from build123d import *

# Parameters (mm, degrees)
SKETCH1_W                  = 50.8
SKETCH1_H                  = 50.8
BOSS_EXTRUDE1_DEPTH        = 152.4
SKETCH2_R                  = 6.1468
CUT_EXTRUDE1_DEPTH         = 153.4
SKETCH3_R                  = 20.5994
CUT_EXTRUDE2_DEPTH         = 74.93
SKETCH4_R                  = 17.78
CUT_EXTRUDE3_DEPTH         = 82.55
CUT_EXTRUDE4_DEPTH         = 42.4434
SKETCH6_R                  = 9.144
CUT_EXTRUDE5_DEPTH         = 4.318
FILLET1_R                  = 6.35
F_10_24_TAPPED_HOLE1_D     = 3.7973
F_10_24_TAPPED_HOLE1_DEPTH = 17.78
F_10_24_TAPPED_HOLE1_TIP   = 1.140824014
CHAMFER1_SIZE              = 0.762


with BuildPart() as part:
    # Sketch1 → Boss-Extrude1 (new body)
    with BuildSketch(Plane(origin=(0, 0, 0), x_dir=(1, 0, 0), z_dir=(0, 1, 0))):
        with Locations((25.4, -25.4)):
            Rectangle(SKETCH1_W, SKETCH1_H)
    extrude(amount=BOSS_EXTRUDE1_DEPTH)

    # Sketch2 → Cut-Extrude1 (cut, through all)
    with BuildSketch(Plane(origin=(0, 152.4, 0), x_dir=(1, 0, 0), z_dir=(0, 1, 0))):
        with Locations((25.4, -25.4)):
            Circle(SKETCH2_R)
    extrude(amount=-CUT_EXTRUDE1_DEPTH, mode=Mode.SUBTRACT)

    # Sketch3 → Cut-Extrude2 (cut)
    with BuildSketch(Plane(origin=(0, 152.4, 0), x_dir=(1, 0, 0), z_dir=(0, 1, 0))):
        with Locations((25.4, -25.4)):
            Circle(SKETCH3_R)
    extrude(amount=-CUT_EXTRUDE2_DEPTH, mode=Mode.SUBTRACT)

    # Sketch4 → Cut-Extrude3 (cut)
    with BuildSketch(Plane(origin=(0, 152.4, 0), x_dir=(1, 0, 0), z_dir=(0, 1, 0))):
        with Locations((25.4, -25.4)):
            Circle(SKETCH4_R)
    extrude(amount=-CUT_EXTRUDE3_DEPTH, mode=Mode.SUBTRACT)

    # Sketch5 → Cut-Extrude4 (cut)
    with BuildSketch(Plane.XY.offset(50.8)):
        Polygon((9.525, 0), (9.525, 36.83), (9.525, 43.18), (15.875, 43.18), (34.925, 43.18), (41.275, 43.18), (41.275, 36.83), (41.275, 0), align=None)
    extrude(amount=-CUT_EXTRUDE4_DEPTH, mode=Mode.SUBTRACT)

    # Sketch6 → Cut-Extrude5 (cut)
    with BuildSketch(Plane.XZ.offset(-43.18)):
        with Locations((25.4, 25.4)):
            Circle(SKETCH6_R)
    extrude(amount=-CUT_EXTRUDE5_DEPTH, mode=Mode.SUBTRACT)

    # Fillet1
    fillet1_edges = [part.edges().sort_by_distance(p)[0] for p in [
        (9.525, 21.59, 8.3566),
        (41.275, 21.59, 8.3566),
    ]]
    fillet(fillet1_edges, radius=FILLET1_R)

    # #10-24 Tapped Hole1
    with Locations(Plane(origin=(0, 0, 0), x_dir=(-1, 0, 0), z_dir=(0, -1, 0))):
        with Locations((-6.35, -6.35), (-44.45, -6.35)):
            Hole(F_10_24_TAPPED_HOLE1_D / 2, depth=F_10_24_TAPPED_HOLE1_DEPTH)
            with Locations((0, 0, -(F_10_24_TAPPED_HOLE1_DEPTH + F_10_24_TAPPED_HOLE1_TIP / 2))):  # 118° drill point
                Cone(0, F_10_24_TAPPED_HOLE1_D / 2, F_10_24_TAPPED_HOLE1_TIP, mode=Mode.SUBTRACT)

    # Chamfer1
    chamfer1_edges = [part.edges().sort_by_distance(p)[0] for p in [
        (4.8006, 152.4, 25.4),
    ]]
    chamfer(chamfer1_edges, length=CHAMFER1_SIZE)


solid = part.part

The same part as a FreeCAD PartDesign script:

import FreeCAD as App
import Part
import Sketcher
from FreeCAD import Vector
Q = App.Units.Quantity


def edges_at(feature, points):
    """Names of the edges that pass closest to the given points."""
    edges = feature.Shape.Edges
    near = lambda p: min(range(len(edges)), key=lambda i: edges[i].distToShape(Part.Vertex(*p))[0])
    return sorted({f"Edge{near(p) + 1}" for p in points})


def add_polygon(sketch, points):
    """Adds a closed chain of lines whose ends are joined by coincident constraints."""
    first, n = sketch.GeometryCount, len(points)
    for a, b in zip(points, points[1:] + points[:1]):
        sketch.addGeometry(Part.LineSegment(App.Vector(*a, 0), App.Vector(*b, 0)), False)
    for i in range(n):
        sketch.addConstraint(Sketcher.Constraint("Coincident", first + i, 2, first + (i + 1) % n, 1))

doc = App.newDocument("Part")
body = doc.addObject("PartDesign::Body", "Body")

# Sketch on XZ plane
sketch1 = body.newObject("Sketcher::SketchObject", "Sketch")
sketch1.AttachmentSupport = (doc.getObject("XZ_Plane"), [""])
sketch1.MapMode = "FlatFace"
add_polygon(sketch1, [(0, 0), (0, 51), (51, 51), (51, 0)])  # lines 0-3
sketch1.addConstraint([
    Sketcher.Constraint("Vertical", 0),
    Sketcher.Constraint("Horizontal", 1),
    Sketcher.Constraint("Vertical", 2),
    Sketcher.Constraint("Horizontal", 3),
    Sketcher.Constraint("Coincident", 3, 2, -1, 1),
    Sketcher.Constraint("Equal", 3, 0),
    Sketcher.Constraint("DistanceX", 1, 1, 1, 2, Q("2 in")),
])
pad1 = body.newObject("PartDesign::Pad", "Pad")
pad1.Profile = sketch1
pad1.Length = Q("6 in")
pad1.Reversed = True

# Sketch on XZ plane
sketch2 = body.newObject("Sketcher::SketchObject", "Sketch001")
sketch2.AttachmentSupport = (doc.getObject("XZ_Plane"), [""])
sketch2.MapMode = "FlatFace"
sketch2.AttachmentOffset = App.Placement(Vector(0, 0, -6 * 25.4), App.Rotation())
sketch2.addGeometry(Part.Circle(Vector(25, 25, 0), Vector(0, 0, 1), 6), False)
sketch2.addConstraint([
    Sketcher.Constraint("Diameter", 0, Q("0.484 in")),
    Sketcher.Constraint("DistanceX", -1, 1, 0, 3, Q("1 in")),
    Sketcher.Constraint("DistanceY", -1, 1, 0, 3, Q("1 in")),
])
pocket1 = body.newObject("PartDesign::Pocket", "Pocket")
pocket1.Profile = sketch2
pocket1.Type = "ThroughAll"
pocket1.Reversed = True

# Sketch on XZ plane
sketch3 = body.newObject("Sketcher::SketchObject", "Sketch002")
sketch3.AttachmentSupport = (doc.getObject("XZ_Plane"), [""])
sketch3.MapMode = "FlatFace"
sketch3.AttachmentOffset = App.Placement(Vector(0, 0, -6 * 25.4), App.Rotation())
sketch3.addGeometry(Part.Circle(Vector(25, 25, 0), Vector(0, 0, 1), 21), False)
sketch3.addConstraint([
    Sketcher.Constraint("Diameter", 0, Q("1.622 in")),
    Sketcher.Constraint("DistanceX", -1, 1, 0, 3, Q("1 in")),
    Sketcher.Constraint("DistanceY", -1, 1, 0, 3, Q("1 in")),
])
pocket2 = body.newObject("PartDesign::Pocket", "Pocket001")
pocket2.Profile = sketch3
pocket2.Length = Q("2.95 in")
pocket2.Reversed = True

# Sketch on XZ plane
sketch4 = body.newObject("Sketcher::SketchObject", "Sketch003")
sketch4.AttachmentSupport = (doc.getObject("XZ_Plane"), [""])
sketch4.MapMode = "FlatFace"
sketch4.AttachmentOffset = App.Placement(Vector(0, 0, -6 * 25.4), App.Rotation())
sketch4.addGeometry(Part.Circle(Vector(25, 25, 0), Vector(0, 0, 1), 18), False)
sketch4.addConstraint([
    Sketcher.Constraint("Diameter", 0, Q("1.4 in")),
    Sketcher.Constraint("DistanceX", -1, 1, 0, 3, Q("1 in")),
    Sketcher.Constraint("DistanceY", -1, 1, 0, 3, Q("1 in")),
])
pocket3 = body.newObject("PartDesign::Pocket", "Pocket002")
pocket3.Profile = sketch4
pocket3.Length = Q("3.25 in")
pocket3.Reversed = True

# Sketch on XY plane
sketch5 = body.newObject("Sketcher::SketchObject", "Sketch004")
sketch5.AttachmentSupport = (doc.getObject("XY_Plane"), [""])
sketch5.MapMode = "FlatFace"
sketch5.AttachmentOffset = App.Placement(Vector(0, 0, 2 * 25.4), App.Rotation())
add_polygon(sketch5, [(10, 43), (10, 0), (41, 0), (41, 43)])  # lines 0-3
sketch5.addConstraint([
    Sketcher.Constraint("Vertical", 0),
    Sketcher.Constraint("Horizontal", 1),
    Sketcher.Constraint("Vertical", 2),
    Sketcher.Constraint("Horizontal", 3),
    Sketcher.Constraint("PointOnObject", 0, 2, -1),
    Sketcher.Constraint("DistanceY", 0, 2, 0, 1, Q("1.7 in")),
    Sketcher.Constraint("DistanceX", 1, 1, 1, 2, Q("1.25 in")),
    Sketcher.Constraint("DistanceX", -1, 1, 0, 2, Q("0.375 in")),
])
pocket4 = body.newObject("PartDesign::Pocket", "Pocket003")
pocket4.Profile = sketch5
pocket4.Length = Q("1.671 in")

# Sketch on XZ plane
sketch6 = body.newObject("Sketcher::SketchObject", "Sketch005")
sketch6.AttachmentSupport = (doc.getObject("XZ_Plane"), [""])
sketch6.MapMode = "FlatFace"
sketch6.AttachmentOffset = App.Placement(Vector(0, 0, -1.7 * 25.4), App.Rotation())
sketch6.addGeometry(Part.Circle(Vector(25, 25, 0), Vector(0, 0, 1), 9), False)
sketch6.addConstraint([
    Sketcher.Constraint("Diameter", 0, Q("0.72 in")),
    Sketcher.Constraint("DistanceX", -1, 1, 0, 3, Q("1 in")),
    Sketcher.Constraint("DistanceY", -1, 1, 0, 3, Q("1 in")),
])
pocket5 = body.newObject("PartDesign::Pocket", "Pocket004")
pocket5.Profile = sketch6
pocket5.Length = Q("0.17 in")
doc.recompute()

fillet = body.newObject("PartDesign::Fillet", "Fillet")
fillet.Base = (pocket5, edges_at(pocket5, [(9.525, 21.59, 8.357), (41.275, 21.59, 8.357)]))
fillet.Radius = Q("0.25 in")

# Sketch on XZ plane
sketch7 = body.newObject("Sketcher::SketchObject", "Sketch006")
sketch7.AttachmentSupport = (doc.getObject("XZ_Plane"), [""])
sketch7.MapMode = "FlatFace"
sketch7.addGeometry([
    Part.Circle(Vector(6.3, 6.3, 0), Vector(0, 0, 1), 1.9),
    Part.Circle(Vector(44.5, 6.3, 0), Vector(0, 0, 1), 1.9),
], False)
sketch7.addConstraint([
    Sketcher.Constraint("Equal", 0, 1),
    Sketcher.Constraint("Horizontal", 0, 3, 1, 3),
    Sketcher.Constraint("Diameter", 0, Q("0.1495 in")),
    Sketcher.Constraint("DistanceX", 0, 3, 1, 3, Q("1.5 in")),
    Sketcher.Constraint("DistanceX", -1, 1, 0, 3, Q("0.25 in")),
    Sketcher.Constraint("DistanceY", -1, 1, 0, 3, Q("0.25 in")),
])
doc.recompute()
hole = body.newObject("PartDesign::Hole", "Hole")
hole.Profile = sketch7
hole.ThreadType = "None"
hole.Diameter = Q("0.1495 in")
hole.DepthType = "Dimension"
hole.Depth = Q("0.7 in")
hole.DrillPoint = "Angled"
hole.DrillPointAngle = 118
doc.recompute()

chamfer = body.newObject("PartDesign::Chamfer", "Chamfer")
chamfer.Base = (hole, edges_at(hole, [(4.801, 152.4, 25.4)]))
chamfer.Size = Q("0.03 in")

doc.recompute()
